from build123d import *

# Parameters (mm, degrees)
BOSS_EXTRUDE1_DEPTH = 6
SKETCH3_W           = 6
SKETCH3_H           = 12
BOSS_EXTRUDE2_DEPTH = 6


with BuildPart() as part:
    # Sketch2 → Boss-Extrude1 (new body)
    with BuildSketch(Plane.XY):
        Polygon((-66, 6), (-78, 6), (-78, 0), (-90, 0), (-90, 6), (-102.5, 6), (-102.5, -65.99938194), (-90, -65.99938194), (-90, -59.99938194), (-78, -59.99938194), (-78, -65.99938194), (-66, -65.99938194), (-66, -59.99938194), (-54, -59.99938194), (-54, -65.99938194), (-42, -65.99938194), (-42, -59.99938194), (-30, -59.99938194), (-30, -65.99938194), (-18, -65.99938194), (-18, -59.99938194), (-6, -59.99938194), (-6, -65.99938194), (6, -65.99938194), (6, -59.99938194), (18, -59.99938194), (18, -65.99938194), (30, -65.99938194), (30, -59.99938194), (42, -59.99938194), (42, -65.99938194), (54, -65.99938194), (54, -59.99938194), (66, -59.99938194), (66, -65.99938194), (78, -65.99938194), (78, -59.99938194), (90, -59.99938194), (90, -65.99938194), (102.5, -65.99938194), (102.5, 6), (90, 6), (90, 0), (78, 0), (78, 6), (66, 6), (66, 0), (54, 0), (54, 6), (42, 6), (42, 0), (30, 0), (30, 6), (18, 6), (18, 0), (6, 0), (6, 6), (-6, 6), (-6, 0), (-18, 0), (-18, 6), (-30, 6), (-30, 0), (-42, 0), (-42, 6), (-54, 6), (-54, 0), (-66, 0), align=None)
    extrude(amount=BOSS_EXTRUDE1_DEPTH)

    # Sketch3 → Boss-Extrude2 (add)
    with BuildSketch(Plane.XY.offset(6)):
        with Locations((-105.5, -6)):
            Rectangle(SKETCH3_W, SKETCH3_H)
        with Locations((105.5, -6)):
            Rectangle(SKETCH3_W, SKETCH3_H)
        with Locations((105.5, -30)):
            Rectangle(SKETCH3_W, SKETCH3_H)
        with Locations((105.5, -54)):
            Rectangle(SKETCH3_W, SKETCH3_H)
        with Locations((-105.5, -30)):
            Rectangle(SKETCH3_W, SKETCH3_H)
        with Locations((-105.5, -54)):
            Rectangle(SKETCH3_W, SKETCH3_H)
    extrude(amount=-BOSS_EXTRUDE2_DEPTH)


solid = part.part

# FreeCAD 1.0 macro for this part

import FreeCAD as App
import Part
import Sketcher
Q = App.Units.Quantity


def add_polygon(sketch, points):
    """Adds a closed chain of lines whose ends are joined by coincident constraints."""
    first, n = sketch.GeometryCount, len(points)
    for a, b in zip(points, points[1:] + points[:1]):
        sketch.addGeometry(Part.LineSegment(App.Vector(*a, 0), App.Vector(*b, 0)), False)
    for i in range(n):
        sketch.addConstraint(Sketcher.Constraint("Coincident", first + i, 2, first + (i + 1) % n, 1))

doc = App.newDocument("Part")
params = doc.addObject("Spreadsheet::Sheet", "Params")
for row, (alias, value) in enumerate([
    ("sketch1_width", "12 mm"),
    ("sketch1_height", "6 mm"),
    ("sketch1_width2", "12.5 mm"),
    ("pad1_length", "6 mm"),
    ("sketch2_width", "6 mm"),
    ("sketch2_height", "12 mm"),
    ("pad2_length", "6 mm"),
], start=1):
    params.set(f"A{row}", alias)
    params.set(f"B{row}", "=" + value)
    params.setAlias(f"B{row}", alias)

body = doc.addObject("PartDesign::Body", "Body")

# Sketch on XY plane
sketch1 = body.newObject("Sketcher::SketchObject", "Sketch")
sketch1.AttachmentSupport = (doc.getObject("XY_Plane"), [""])
sketch1.MapMode = "FlatFace"
add_polygon(sketch1, [(-66, 6), (-78, 6), (-78, 0), (-90, 0), (-90, 6), (-102, 6), (-102, -66), (-90, -66), (-90, -60), (-78, -60), (-78, -66), (-66, -66), (-66, -60), (-54, -60), (-54, -66), (-42, -66), (-42, -60), (-30, -60), (-30, -66), (-18, -66), (-18, -60), (-6, -60), (-6, -66), (6, -66), (6, -60), (18, -60), (18, -66), (30, -66), (30, -60), (42, -60), (42, -66), (54, -66), (54, -60), (66, -60), (66, -66), (78, -66), (78, -60), (90, -60), (90, -66), (102, -66), (102, 6), (90, 6), (90, 0), (78, 0), (78, 6), (66, 6), (66, 0), (54, 0), (54, 6), (42, 6), (42, 0), (30, 0), (30, 6), (18, 6), (18, 0), (6, 0), (6, 6), (-6, 6), (-6, 0), (-18, 0), (-18, 6), (-30, 6), (-30, 0), (-42, 0), (-42, 6), (-54, 6), (-54, 0), (-66, 0)])  # lines 0-67
sketch1.addConstraint([
    Sketcher.Constraint("Horizontal", 0),
    Sketcher.Constraint("Vertical", 1),
    Sketcher.Constraint("Horizontal", 2),
    Sketcher.Constraint("Vertical", 3),
    Sketcher.Constraint("Horizontal", 4),
    Sketcher.Constraint("Vertical", 5),
    Sketcher.Constraint("Horizontal", 6),
    Sketcher.Constraint("Vertical", 7),
    Sketcher.Constraint("Horizontal", 8),
    Sketcher.Constraint("Vertical", 9),
    Sketcher.Constraint("Horizontal", 10),
    Sketcher.Constraint("Vertical", 11),
    Sketcher.Constraint("Horizontal", 12),
    Sketcher.Constraint("Vertical", 13),
    Sketcher.Constraint("Horizontal", 14),
    Sketcher.Constraint("Vertical", 15),
    Sketcher.Constraint("Horizontal", 16),
    Sketcher.Constraint("Vertical", 17),
    Sketcher.Constraint("Horizontal", 18),
    Sketcher.Constraint("Vertical", 19),
    Sketcher.Constraint("Horizontal", 20),
    Sketcher.Constraint("Vertical", 21),
    Sketcher.Constraint("Horizontal", 22),
    Sketcher.Constraint("Vertical", 23),
    Sketcher.Constraint("Horizontal", 24),
    Sketcher.Constraint("Vertical", 25),
    Sketcher.Constraint("Horizontal", 26),
    Sketcher.Constraint("Vertical", 27),
    Sketcher.Constraint("Horizontal", 28),
    Sketcher.Constraint("Vertical", 29),
    Sketcher.Constraint("Horizontal", 30),
    Sketcher.Constraint("Vertical", 31),
    Sketcher.Constraint("Horizontal", 32),
    Sketcher.Constraint("Vertical", 33),
    Sketcher.Constraint("Horizontal", 34),
    Sketcher.Constraint("Vertical", 35),
    Sketcher.Constraint("Horizontal", 36),
    Sketcher.Constraint("Vertical", 37),
    Sketcher.Constraint("Horizontal", 38),
    Sketcher.Constraint("Vertical", 39),
    Sketcher.Constraint("Horizontal", 40),
    Sketcher.Constraint("Vertical", 41),
    Sketcher.Constraint("Horizontal", 42),
    Sketcher.Constraint("Vertical", 43),
    Sketcher.Constraint("Horizontal", 44),
    Sketcher.Constraint("Vertical", 45),
    Sketcher.Constraint("Horizontal", 46),
    Sketcher.Constraint("Vertical", 47),
    Sketcher.Constraint("Horizontal", 48),
    Sketcher.Constraint("Vertical", 49),
    Sketcher.Constraint("Horizontal", 50),
    Sketcher.Constraint("Vertical", 51),
    Sketcher.Constraint("Horizontal", 52),
    Sketcher.Constraint("Vertical", 53),
    Sketcher.Constraint("Horizontal", 54),
    Sketcher.Constraint("Vertical", 55),
    Sketcher.Constraint("Horizontal", 56),
    Sketcher.Constraint("Vertical", 57),
    Sketcher.Constraint("Horizontal", 58),
    Sketcher.Constraint("Vertical", 59),
    Sketcher.Constraint("Horizontal", 60),
    Sketcher.Constraint("Vertical", 61),
    Sketcher.Constraint("Horizontal", 62),
    Sketcher.Constraint("Vertical", 63),
    Sketcher.Constraint("Horizontal", 64),
    Sketcher.Constraint("Vertical", 65),
    Sketcher.Constraint("Horizontal", 66),
    Sketcher.Constraint("Vertical", 67),
    Sketcher.Constraint("Symmetric", 2, 2, 41, 2, -1, 1),
    Sketcher.Constraint("Symmetric", 54, 2, 57, 2, -1, 1),
    Sketcher.Constraint("Symmetric", 50, 2, 61, 2, -1, 1),
    Sketcher.Constraint("Symmetric", 46, 2, 65, 2, -1, 1),
    Sketcher.Constraint("Symmetric", 20, 2, 23, 2, -2),
    Sketcher.Constraint("Symmetric", 18, 2, 25, 2, -2),
    Sketcher.Constraint("Symmetric", 16, 2, 27, 2, -2),
    Sketcher.Constraint("Symmetric", 14, 2, 29, 2, -2),
    Sketcher.Constraint("Symmetric", 12, 2, 31, 2, -2),
    Sketcher.Constraint("Symmetric", 10, 2, 33, 2, -2),
    Sketcher.Constraint("Symmetric", 8, 2, 35, 2, -2),
    Sketcher.Constraint("Symmetric", 6, 2, 37, 2, -2),
    Sketcher.Constraint("Symmetric", 4, 2, 39, 2, -2),
    Sketcher.Constraint("Symmetric", 1, 2, 42, 2, -2),
    Sketcher.Constraint("Symmetric", 53, 2, 58, 2, -2),
    Sketcher.Constraint("Symmetric", 49, 2, 62, 2, -2),
    Sketcher.Constraint("Symmetric", 45, 2, 66, 2, -2),
    Sketcher.Constraint("Horizontal", 0, 2, 3, 2),
    Sketcher.Constraint("Horizontal", 6, 2, 9, 2),
    Sketcher.Constraint("Horizontal", 8, 2, 11, 2),
    Sketcher.Constraint("Horizontal", 10, 2, 13, 2),
    Sketcher.Constraint("Horizontal", 12, 2, 15, 2),
    Sketcher.Constraint("Horizontal", 14, 2, 17, 2),
    Sketcher.Constraint("Horizontal", 16, 2, 19, 2),
    Sketcher.Constraint("Horizontal", 18, 2, 21, 2),
    Sketcher.Constraint("Horizontal", 40, 2, 43, 2),
    Sketcher.Constraint("Horizontal", 44, 2, 47, 2),
    Sketcher.Constraint("Horizontal", 48, 2, 51, 2),
    Sketcher.Constraint("Horizontal", 52, 2, 55, 2),
    Sketcher.Constraint("Horizontal", 56, 2, 59, 2),
    Sketcher.Constraint("Horizontal", 60, 2, 63, 2),
    Sketcher.Constraint("Vertical", 3, 2, 6, 2),
    Sketcher.Constraint("Vertical", 1, 2, 8, 2),
    Sketcher.Constraint("Vertical", 33, 2, 44, 2),
    Sketcher.Constraint("Vertical", 31, 2, 46, 2),
    Sketcher.Constraint("Vertical", 29, 2, 48, 2),
    Sketcher.Constraint("Vertical", 27, 2, 50, 2),
    Sketcher.Constraint("Vertical", 25, 2, 52, 2),
    Sketcher.Constraint("Vertical", 23, 2, 54, 2),
    Sketcher.Constraint("Equal", 0, 2),
    Sketcher.Constraint("Equal", 10, 12),
    Sketcher.Constraint("Equal", 12, 14),
    Sketcher.Constraint("Equal", 14, 16),
    Sketcher.Constraint("Equal", 16, 18),
    Sketcher.Constraint("Equal", 18, 20),
    Sketcher.Constraint("Equal", 20, 22),
    Sketcher.Constraint("Equal", 3, 7),
    Sketcher.Constraint("DistanceX", 0, 2, 0, 1, Q("12 mm")),
    Sketcher.Constraint("DistanceY", 1, 2, 1, 1, Q("6 mm")),
    Sketcher.Constraint("DistanceX", 4, 2, 4, 1, Q("12.5 mm")),
    Sketcher.Constraint("DistanceY", 5, 2, 5, 1, Q("71.999382 mm")),
])
sketch1.setExpression("Constraints[183]", "Params.sketch1_width")
sketch1.setExpression("Constraints[184]", "Params.sketch1_height")
sketch1.setExpression("Constraints[185]", "Params.sketch1_width2")
pad1 = body.newObject("PartDesign::Pad", "Pad")
pad1.Profile = sketch1
pad1.setExpression("Length", "Params.pad1_length")

# Sketch on XY plane
sketch2 = body.newObject("Sketcher::SketchObject", "Sketch001")
sketch2.AttachmentSupport = (doc.getObject("XY_Plane"), [""])
sketch2.MapMode = "FlatFace"
sketch2.AttachmentOffset = App.Placement(App.Vector(0, 0, 6), App.Rotation())
add_polygon(sketch2, [(-108, 0), (-108, -12), (-102, -12), (-102, 0)])  # lines 0-3
add_polygon(sketch2, [(102, 0), (102, -12), (108, -12), (108, 0)])  # lines 4-7
add_polygon(sketch2, [(102, -24), (102, -36), (108, -36), (108, -24)])  # lines 8-11
add_polygon(sketch2, [(102, -48), (102, -60), (108, -60), (108, -48)])  # lines 12-15
add_polygon(sketch2, [(-108, -24), (-108, -36), (-102, -36), (-102, -24)])  # lines 16-19
add_polygon(sketch2, [(-108, -48), (-108, -60), (-102, -60), (-102, -48)])  # lines 20-23
sketch2.addConstraint([
    Sketcher.Constraint("Vertical", 0),
    Sketcher.Constraint("Horizontal", 1),
    Sketcher.Constraint("Vertical", 2),
    Sketcher.Constraint("Horizontal", 3),
    Sketcher.Constraint("Vertical", 4),
    Sketcher.Constraint("Horizontal", 5),
    Sketcher.Constraint("Vertical", 6),
    Sketcher.Constraint("Horizontal", 7),
    Sketcher.Constraint("Vertical", 8),
    Sketcher.Constraint("Horizontal", 9),
    Sketcher.Constraint("Vertical", 10),
    Sketcher.Constraint("Horizontal", 11),
    Sketcher.Constraint("Vertical", 12),
    Sketcher.Constraint("Horizontal", 13),
    Sketcher.Constraint("Vertical", 14),
    Sketcher.Constraint("Horizontal", 15),
    Sketcher.Constraint("Vertical", 16),
    Sketcher.Constraint("Horizontal", 17),
    Sketcher.Constraint("Vertical", 18),
    Sketcher.Constraint("Horizontal", 19),
    Sketcher.Constraint("Vertical", 20),
    Sketcher.Constraint("Horizontal", 21),
    Sketcher.Constraint("Vertical", 22),
    Sketcher.Constraint("Horizontal", 23),
    Sketcher.Constraint("Symmetric", 3, 2, 6, 2, -1, 1),
    Sketcher.Constraint("Symmetric", 1, 2, 4, 2, -2),
    Sketcher.Constraint("Symmetric", 9, 2, 16, 2, -2),
    Sketcher.Constraint("Symmetric", 11, 2, 18, 2, -2),
    Sketcher.Constraint("Symmetric", 13, 2, 20, 2, -2),
    Sketcher.Constraint("Symmetric", 15, 2, 22, 2, -2),
    Sketcher.Constraint("PointOnObject", 2, 2, -1),
    Sketcher.Constraint("Vertical", 7, 2, 8, 2),
    Sketcher.Constraint("Vertical", 6, 2, 9, 2),
    Sketcher.Constraint("Vertical", 11, 2, 12, 2),
    Sketcher.Constraint("Vertical", 10, 2, 13, 2),
    Sketcher.Constraint("Equal", 6, 8),
    Sketcher.Constraint("Equal", 10, 12),
    Sketcher.Constraint("DistanceX", 1, 1, 1, 2, Q("6 mm")),
    Sketcher.Constraint("DistanceY", 0, 2, 0, 1, Q("12 mm")),
    Sketcher.Constraint("DistanceY", 8, 2, -1, 1, Q("36 mm")),
    Sketcher.Constraint("DistanceY", 12, 2, -1, 1, Q("60 mm")),
    Sketcher.Constraint("DistanceX", 1, 2, 4, 2, Q("205 mm")),
])
sketch2.setExpression("Constraints[61]", "Params.sketch2_width")
sketch2.setExpression("Constraints[62]", "Params.sketch2_height")
pad2 = body.newObject("PartDesign::Pad", "Pad001")
pad2.Profile = sketch2
pad2.setExpression("Length", "Params.pad2_length")
pad2.Reversed = True

doc.recompute()
